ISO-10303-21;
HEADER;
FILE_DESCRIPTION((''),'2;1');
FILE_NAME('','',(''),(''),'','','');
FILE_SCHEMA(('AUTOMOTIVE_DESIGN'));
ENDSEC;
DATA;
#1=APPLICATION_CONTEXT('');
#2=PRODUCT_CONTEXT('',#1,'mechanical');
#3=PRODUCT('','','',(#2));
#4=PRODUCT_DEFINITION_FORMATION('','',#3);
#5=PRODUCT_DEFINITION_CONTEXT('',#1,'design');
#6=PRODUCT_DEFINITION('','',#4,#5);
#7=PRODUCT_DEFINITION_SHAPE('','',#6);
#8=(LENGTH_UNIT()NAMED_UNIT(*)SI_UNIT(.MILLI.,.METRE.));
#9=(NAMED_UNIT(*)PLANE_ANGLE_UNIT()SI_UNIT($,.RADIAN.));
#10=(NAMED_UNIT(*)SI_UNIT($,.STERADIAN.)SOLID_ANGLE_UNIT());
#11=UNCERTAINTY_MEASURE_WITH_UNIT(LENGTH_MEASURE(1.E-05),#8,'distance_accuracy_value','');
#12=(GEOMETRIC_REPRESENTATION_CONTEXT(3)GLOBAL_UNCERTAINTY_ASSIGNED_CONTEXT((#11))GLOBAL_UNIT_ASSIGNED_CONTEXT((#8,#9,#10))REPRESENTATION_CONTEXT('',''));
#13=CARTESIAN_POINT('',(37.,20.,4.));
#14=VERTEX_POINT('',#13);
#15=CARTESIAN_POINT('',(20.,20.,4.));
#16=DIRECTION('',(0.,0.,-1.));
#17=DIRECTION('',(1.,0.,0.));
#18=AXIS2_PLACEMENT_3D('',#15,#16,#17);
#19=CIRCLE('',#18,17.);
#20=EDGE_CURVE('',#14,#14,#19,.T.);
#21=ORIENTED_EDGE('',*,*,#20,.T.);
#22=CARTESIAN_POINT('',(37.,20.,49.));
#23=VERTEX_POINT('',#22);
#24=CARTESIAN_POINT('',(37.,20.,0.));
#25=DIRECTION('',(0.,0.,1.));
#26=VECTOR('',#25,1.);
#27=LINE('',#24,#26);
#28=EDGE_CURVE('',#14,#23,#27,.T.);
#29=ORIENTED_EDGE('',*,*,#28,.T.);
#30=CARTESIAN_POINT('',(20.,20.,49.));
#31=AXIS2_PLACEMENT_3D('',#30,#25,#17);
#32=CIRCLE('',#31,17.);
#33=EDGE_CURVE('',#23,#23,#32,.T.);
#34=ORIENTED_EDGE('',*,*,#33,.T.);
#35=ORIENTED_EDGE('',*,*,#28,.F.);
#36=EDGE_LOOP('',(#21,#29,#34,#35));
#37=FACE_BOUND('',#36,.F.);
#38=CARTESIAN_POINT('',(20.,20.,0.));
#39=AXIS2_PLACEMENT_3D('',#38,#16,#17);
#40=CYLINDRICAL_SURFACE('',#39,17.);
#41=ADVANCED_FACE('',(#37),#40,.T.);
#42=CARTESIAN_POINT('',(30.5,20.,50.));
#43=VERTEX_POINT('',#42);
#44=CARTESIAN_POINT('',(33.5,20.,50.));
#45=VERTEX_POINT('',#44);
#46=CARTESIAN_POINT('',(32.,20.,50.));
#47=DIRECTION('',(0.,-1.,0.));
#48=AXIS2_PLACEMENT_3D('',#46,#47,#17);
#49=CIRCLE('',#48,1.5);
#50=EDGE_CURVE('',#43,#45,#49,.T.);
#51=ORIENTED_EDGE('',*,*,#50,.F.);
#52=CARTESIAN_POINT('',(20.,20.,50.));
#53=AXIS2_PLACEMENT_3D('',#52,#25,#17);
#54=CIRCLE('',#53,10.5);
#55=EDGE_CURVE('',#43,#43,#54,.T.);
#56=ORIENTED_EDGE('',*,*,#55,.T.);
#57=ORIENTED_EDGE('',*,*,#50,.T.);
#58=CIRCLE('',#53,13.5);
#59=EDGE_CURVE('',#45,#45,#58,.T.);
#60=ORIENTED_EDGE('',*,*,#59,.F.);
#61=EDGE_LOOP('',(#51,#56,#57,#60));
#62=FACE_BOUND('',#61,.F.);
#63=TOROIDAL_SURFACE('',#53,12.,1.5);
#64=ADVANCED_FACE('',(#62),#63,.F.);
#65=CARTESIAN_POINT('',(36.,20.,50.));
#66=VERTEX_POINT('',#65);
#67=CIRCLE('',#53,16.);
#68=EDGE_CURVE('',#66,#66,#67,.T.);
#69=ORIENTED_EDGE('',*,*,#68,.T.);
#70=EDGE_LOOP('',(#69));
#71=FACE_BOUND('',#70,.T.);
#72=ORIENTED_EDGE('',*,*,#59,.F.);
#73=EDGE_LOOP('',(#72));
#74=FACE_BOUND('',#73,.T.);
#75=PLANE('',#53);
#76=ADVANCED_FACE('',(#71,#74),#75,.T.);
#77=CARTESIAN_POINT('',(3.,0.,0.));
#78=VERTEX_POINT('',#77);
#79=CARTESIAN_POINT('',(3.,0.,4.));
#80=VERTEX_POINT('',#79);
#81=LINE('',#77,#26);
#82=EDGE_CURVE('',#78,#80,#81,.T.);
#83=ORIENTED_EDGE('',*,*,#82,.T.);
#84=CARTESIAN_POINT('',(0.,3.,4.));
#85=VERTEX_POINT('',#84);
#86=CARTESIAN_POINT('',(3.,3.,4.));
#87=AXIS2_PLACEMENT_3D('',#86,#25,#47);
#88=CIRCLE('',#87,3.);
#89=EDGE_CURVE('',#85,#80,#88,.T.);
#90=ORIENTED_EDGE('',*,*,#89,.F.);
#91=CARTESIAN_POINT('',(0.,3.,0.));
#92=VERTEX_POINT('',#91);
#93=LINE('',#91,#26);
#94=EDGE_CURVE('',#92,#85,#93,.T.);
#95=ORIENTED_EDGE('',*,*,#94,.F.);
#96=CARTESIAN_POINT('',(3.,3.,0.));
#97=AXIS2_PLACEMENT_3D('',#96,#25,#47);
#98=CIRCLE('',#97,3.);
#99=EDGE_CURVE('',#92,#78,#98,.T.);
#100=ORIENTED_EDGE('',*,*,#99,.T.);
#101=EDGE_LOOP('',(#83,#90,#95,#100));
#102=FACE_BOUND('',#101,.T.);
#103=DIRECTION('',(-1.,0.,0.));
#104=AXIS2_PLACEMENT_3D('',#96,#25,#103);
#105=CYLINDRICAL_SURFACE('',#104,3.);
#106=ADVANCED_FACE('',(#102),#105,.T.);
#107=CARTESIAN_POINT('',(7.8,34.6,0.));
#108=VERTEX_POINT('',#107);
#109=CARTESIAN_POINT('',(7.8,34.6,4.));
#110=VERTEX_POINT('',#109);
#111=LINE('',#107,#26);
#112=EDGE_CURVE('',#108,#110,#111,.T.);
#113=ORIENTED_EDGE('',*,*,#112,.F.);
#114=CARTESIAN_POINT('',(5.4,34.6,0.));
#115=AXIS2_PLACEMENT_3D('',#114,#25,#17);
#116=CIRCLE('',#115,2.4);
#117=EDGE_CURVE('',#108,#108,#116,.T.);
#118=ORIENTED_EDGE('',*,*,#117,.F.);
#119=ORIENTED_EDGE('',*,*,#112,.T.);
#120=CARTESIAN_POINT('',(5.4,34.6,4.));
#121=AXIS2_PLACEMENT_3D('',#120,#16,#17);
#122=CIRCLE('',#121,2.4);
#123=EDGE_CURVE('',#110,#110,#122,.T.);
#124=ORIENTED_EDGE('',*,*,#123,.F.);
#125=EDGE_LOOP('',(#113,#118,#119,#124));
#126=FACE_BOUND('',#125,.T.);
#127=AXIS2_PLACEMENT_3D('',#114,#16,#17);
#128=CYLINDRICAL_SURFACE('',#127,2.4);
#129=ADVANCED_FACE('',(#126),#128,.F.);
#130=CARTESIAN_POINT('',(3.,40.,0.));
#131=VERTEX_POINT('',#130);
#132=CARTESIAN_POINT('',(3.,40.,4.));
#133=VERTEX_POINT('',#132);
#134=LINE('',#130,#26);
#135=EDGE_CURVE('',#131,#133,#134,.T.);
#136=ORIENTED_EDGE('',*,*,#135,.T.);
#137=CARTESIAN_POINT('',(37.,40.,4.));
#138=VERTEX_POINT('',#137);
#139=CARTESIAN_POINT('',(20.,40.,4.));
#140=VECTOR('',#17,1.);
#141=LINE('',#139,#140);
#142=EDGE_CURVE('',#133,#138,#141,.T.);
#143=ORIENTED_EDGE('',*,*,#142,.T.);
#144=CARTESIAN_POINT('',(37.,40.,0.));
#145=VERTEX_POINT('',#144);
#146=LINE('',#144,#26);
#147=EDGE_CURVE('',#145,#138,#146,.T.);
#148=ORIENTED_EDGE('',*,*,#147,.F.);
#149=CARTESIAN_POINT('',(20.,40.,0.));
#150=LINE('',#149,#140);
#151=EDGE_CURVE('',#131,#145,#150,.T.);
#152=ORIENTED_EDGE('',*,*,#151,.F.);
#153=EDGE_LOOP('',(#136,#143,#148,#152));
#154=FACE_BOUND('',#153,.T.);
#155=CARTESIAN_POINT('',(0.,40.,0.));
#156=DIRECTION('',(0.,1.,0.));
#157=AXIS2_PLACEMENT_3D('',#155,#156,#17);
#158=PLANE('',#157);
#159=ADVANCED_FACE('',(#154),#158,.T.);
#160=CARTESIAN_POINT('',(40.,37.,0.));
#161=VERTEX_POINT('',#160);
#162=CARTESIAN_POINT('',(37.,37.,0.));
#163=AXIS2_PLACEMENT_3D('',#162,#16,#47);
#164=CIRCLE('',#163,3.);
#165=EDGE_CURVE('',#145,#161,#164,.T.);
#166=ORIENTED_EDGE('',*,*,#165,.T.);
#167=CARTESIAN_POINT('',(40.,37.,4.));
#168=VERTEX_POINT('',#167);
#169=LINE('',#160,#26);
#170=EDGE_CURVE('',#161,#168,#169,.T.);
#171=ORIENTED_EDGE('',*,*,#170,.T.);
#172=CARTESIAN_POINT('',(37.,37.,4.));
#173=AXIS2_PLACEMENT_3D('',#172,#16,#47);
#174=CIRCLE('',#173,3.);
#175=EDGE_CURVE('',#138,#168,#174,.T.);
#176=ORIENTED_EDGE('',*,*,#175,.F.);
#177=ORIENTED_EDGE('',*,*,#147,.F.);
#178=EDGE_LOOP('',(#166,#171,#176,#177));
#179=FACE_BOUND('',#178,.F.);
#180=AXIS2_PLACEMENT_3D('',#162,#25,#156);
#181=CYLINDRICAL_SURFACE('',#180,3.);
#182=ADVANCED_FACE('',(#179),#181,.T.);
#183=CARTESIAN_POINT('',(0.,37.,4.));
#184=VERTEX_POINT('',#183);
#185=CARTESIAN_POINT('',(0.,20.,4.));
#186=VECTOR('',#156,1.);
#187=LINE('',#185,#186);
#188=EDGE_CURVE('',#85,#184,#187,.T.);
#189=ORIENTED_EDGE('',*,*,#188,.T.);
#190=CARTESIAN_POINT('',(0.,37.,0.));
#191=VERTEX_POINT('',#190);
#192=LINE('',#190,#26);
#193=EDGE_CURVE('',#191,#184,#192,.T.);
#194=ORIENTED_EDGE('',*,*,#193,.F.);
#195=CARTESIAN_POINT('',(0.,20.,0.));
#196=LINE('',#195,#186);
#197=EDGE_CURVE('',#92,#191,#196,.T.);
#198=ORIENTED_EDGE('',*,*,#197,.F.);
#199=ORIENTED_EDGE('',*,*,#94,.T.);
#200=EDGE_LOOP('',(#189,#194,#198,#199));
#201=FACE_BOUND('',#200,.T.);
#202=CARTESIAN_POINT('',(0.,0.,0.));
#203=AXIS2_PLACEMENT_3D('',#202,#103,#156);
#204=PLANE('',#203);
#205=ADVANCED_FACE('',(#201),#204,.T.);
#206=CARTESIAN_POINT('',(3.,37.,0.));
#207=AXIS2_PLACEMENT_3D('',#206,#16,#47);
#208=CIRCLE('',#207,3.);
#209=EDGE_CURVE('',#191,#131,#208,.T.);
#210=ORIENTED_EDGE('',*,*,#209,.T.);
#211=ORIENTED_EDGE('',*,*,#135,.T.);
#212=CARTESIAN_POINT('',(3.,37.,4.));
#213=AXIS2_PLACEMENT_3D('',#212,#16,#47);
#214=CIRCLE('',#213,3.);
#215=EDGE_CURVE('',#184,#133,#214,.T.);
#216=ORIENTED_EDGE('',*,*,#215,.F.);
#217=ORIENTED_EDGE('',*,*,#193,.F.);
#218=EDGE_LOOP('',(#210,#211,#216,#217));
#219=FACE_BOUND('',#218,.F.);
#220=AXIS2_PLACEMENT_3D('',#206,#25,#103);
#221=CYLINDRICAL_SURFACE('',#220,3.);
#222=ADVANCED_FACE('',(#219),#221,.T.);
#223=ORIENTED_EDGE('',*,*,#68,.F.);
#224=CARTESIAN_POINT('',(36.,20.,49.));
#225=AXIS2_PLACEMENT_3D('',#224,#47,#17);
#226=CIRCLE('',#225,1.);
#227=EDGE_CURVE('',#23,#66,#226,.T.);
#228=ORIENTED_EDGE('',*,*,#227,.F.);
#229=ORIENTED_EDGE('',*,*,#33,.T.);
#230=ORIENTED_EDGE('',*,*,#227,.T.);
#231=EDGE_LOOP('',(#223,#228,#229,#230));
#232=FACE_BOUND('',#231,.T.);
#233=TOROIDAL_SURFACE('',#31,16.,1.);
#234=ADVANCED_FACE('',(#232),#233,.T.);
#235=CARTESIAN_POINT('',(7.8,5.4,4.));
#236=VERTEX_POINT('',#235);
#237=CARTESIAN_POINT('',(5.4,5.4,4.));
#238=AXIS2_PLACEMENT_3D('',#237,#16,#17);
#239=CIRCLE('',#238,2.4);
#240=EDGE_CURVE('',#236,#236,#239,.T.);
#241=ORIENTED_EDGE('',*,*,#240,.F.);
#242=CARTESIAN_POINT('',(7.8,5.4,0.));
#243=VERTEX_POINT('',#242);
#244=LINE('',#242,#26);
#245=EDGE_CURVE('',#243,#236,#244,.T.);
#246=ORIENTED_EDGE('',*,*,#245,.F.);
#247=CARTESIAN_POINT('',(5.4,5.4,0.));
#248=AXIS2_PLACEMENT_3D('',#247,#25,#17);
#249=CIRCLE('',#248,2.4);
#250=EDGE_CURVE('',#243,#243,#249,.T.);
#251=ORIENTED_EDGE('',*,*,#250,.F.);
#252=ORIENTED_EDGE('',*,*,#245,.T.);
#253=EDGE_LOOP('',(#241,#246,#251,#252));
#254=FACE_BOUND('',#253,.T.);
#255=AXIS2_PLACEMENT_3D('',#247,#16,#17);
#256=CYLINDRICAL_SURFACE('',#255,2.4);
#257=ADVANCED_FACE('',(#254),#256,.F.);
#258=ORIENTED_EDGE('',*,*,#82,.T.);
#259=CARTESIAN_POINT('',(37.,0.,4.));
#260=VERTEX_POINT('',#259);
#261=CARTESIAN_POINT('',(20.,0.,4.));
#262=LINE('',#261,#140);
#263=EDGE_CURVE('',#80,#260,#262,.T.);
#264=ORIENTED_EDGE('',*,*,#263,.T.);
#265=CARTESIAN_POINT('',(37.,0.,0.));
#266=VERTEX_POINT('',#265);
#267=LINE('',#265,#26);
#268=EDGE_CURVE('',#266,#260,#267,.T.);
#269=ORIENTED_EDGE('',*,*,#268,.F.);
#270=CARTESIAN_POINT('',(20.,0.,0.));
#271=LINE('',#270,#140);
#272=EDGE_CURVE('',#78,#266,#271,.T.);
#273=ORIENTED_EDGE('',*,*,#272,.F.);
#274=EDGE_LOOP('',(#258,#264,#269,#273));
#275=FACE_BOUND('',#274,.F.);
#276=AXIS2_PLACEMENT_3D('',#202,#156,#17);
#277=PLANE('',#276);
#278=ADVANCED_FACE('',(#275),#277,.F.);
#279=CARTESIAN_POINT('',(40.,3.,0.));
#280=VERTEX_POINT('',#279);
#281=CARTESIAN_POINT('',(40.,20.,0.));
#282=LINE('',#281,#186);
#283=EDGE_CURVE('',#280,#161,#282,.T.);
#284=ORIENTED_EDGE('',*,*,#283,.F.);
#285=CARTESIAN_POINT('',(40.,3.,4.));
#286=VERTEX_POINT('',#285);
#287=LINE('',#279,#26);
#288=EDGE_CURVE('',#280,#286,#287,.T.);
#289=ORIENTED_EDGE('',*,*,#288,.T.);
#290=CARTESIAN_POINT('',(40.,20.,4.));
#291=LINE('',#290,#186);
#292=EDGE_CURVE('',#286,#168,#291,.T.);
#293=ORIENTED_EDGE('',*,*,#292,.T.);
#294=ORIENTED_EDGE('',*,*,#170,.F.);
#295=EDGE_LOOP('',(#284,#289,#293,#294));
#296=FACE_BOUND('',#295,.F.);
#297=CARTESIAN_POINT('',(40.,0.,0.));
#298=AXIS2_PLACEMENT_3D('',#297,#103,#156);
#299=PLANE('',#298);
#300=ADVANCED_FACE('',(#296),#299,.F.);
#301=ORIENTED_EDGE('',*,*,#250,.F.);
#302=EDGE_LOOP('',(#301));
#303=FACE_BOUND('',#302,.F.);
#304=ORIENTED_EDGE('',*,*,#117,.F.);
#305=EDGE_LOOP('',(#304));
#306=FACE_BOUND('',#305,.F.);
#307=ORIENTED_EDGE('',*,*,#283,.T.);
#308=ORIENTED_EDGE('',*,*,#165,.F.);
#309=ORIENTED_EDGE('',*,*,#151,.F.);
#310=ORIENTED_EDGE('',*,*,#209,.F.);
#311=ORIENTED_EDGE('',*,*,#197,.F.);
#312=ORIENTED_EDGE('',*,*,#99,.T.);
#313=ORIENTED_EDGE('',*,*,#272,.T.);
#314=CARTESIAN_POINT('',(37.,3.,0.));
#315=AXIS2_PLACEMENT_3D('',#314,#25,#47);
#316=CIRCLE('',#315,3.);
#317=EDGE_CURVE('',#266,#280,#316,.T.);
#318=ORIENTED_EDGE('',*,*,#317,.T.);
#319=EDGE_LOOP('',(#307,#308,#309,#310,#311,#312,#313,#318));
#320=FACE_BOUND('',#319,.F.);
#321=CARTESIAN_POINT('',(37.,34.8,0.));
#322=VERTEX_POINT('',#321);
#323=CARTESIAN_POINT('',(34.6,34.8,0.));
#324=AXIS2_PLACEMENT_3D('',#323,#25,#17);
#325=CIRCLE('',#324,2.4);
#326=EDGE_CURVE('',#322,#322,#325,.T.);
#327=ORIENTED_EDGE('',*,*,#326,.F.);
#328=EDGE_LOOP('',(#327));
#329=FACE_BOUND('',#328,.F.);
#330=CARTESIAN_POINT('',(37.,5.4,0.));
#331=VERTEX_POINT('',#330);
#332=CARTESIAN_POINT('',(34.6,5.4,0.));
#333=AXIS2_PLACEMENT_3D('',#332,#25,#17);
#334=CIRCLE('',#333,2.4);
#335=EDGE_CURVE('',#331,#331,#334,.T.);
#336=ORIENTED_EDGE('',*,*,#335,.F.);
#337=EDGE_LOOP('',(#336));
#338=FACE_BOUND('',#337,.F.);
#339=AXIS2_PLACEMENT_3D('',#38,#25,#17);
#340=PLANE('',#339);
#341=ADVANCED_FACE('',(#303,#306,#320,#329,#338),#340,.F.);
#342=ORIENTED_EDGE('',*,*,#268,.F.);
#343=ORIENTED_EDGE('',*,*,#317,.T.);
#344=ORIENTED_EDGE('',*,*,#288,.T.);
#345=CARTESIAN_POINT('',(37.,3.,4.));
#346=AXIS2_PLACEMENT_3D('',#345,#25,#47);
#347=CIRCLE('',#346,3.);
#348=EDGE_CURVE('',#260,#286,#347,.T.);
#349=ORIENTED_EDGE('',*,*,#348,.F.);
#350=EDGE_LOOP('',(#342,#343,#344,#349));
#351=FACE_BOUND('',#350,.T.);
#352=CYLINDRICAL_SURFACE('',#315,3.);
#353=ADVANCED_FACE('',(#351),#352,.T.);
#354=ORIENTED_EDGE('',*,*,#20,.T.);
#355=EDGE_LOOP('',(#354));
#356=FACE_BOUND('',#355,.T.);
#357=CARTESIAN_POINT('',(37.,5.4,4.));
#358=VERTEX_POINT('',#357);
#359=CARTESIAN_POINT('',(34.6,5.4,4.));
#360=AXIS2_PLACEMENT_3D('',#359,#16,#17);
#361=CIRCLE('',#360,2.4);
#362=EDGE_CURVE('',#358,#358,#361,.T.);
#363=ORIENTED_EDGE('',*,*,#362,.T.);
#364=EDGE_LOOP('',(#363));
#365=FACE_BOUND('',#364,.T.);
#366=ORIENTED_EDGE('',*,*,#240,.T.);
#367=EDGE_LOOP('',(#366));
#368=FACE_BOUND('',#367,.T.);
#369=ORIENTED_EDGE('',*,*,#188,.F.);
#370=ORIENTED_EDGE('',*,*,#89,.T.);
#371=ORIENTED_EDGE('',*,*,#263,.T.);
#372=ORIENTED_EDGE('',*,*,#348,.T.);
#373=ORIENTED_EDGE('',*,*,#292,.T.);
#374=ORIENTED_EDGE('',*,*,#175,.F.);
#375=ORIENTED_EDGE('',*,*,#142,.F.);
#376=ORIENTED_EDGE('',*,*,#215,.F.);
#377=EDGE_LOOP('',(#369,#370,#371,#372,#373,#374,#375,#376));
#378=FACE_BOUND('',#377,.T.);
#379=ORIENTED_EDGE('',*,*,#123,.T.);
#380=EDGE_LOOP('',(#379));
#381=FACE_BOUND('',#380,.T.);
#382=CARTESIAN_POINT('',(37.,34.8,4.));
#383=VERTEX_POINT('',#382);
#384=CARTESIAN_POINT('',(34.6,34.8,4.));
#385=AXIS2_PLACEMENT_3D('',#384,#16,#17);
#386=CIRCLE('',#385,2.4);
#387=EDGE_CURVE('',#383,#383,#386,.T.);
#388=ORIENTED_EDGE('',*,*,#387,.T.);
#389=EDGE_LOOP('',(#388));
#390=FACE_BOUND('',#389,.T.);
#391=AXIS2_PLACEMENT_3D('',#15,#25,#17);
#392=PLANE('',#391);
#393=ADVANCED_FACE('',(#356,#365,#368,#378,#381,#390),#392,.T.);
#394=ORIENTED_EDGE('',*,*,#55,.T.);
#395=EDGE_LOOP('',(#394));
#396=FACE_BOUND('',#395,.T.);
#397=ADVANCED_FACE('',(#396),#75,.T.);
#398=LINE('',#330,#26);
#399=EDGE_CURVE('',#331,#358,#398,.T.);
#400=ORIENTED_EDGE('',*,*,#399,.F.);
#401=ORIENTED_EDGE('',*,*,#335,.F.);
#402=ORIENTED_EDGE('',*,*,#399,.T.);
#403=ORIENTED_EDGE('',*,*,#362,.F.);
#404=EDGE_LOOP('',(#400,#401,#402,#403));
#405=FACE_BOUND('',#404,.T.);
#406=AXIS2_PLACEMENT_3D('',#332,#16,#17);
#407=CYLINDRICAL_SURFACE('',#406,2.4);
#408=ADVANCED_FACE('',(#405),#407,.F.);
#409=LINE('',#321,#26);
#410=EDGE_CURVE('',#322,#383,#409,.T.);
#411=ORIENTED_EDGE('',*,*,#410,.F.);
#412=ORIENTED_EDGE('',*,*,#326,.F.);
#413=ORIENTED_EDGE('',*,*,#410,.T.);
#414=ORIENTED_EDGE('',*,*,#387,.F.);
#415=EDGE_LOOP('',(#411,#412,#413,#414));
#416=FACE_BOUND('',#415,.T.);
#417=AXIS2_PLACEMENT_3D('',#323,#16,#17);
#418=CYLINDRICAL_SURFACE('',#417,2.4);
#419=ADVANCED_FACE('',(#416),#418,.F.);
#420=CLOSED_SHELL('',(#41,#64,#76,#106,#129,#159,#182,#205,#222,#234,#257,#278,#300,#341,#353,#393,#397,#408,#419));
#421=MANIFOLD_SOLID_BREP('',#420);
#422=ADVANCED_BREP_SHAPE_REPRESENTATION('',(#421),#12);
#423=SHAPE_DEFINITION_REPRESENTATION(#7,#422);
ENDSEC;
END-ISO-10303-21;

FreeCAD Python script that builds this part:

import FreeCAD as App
import Part
import Sketcher

V = App.Vector


def edges_at(feature, points):
    """Names of the edges that pass closest to the given points."""
    edges = feature.Shape.Edges
    near = lambda p: min(range(len(edges)), key=lambda i: edges[i].distToShape(Part.Vertex(*p))[0])
    return sorted({f"Edge{near(p) + 1}" for p in points})


def add_polygon(sketch, points):
    """Adds a closed chain of lines whose ends are joined by coincident constraints."""
    first, n = sketch.GeometryCount, len(points)
    for a, b in zip(points, points[1:] + points[:1]):
        sketch.addGeometry(Part.LineSegment(App.Vector(*a, 0), App.Vector(*b, 0)), False)
    for i in range(n):
        sketch.addConstraint(Sketcher.Constraint("Coincident", first + i, 2, first + (i + 1) % n, 1))

doc = App.newDocument("Part")
body = doc.addObject("PartDesign::Body", "Body")

sketch1 = body.newObject("Sketcher::SketchObject", "Sketch")
sketch1.AttachmentSupport = (doc.getObject("XZ_Plane"), [""])
sketch1.MapMode = "FlatFace"
sketch1.AttachmentOffset = App.Placement(V(0, 0, -20), App.Rotation())
sketch1.addGeometry(Part.Circle(V(32, 50, 0), V(0, 0, 1), 1.5), False)
sketch1.addGeometry(Part.LineSegment(V(20, 50, 0), V(20, 60, 0)), True)
sketch1.addConstraint([
    Sketcher.Constraint("Vertical", 1),
    Sketcher.Constraint("Horizontal", 0, 3, 1, 1),
    Sketcher.Constraint("Diameter", 0, 3.0),
    Sketcher.Constraint("DistanceY", 1, 1, 1, 2, 10.0),
    Sketcher.Constraint("DistanceX", -1, 1, 0, 3, 32.0),
    Sketcher.Constraint("DistanceY", -1, 1, 0, 3, 50.0),
    Sketcher.Constraint("DistanceX", -1, 1, 1, 1, 20.0),
])
revolution = body.newObject("PartDesign::Revolution", "Revolution")
revolution.Profile = sketch1
revolution.ReferenceAxis = (sketch1, ["Axis0"])
revolution.Angle = 360
body2 = doc.addObject("PartDesign::Body", "Body001")

sketch2 = body2.newObject("Sketcher::SketchObject", "Sketch001")
sketch2.AttachmentSupport = (doc.getObject("XY_Plane001"), [""])
sketch2.MapMode = "FlatFace"
sketch2.addGeometry(Part.Circle(V(20, 20, 0), V(0, 0, 1), 17), False)
sketch2.addConstraint([
    Sketcher.Constraint("Diameter", 0, 34.0),
    Sketcher.Constraint("DistanceX", -1, 1, 0, 3, 20.0),
    Sketcher.Constraint("DistanceY", -1, 1, 0, 3, 20.0),
])
pad1 = body2.newObject("PartDesign::Pad", "Pad")
pad1.Profile = sketch2
pad1.Length = 50
doc.recompute()

fillet = body2.newObject("PartDesign::Fillet", "Fillet")
fillet.Base = (pad1, edges_at(pad1, [(3, 20, 50)]))
fillet.Radius = 1
body3 = doc.addObject("PartDesign::Body", "Body002")

sketch3 = body3.newObject("Sketcher::SketchObject", "Sketch002")
sketch3.AttachmentSupport = (doc.getObject("XY_Plane002"), [""])
sketch3.MapMode = "FlatFace"
sketch3.addGeometry(Part.Circle(V(5.4, 5.4, 0), V(0, 0, 1), 2.4), False)
sketch3.addConstraint([
    Sketcher.Constraint("Diameter", 0, 4.8),
    Sketcher.Constraint("DistanceX", -1, 1, 0, 3, 5.4),
    Sketcher.Constraint("DistanceY", -1, 1, 0, 3, 5.4),
])
pad2 = body3.newObject("PartDesign::Pad", "Pad001")
pad2.Profile = sketch3
pad2.Length = 10
body4 = doc.addObject("PartDesign::Body", "Body003")

sketch4 = body4.newObject("Sketcher::SketchObject", "Sketch003")
sketch4.AttachmentSupport = (doc.getObject("XY_Plane003"), [""])
sketch4.MapMode = "FlatFace"
sketch4.addGeometry(Part.Circle(V(5.4, 34.6, 0), V(0, 0, 1), 2.4), False)
sketch4.addConstraint([
    Sketcher.Constraint("Diameter", 0, 4.8),
    Sketcher.Constraint("DistanceX", -1, 1, 0, 3, 5.4),
    Sketcher.Constraint("DistanceY", -1, 1, 0, 3, 34.6),
])
pad3 = body4.newObject("PartDesign::Pad", "Pad002")
pad3.Profile = sketch4
pad3.Length = 10
body5 = doc.addObject("PartDesign::Body", "Body004")
body5.AllowCompound = True

sketch5 = body5.newObject("Sketcher::SketchObject", "Sketch004")
sketch5.AttachmentSupport = (doc.getObject("XY_Plane004"), [""])
sketch5.MapMode = "FlatFace"
sketch5.addGeometry(Part.Circle(V(34.6, 34.8, 0), V(0, 0, 1), 2.4), False)
sketch5.addConstraint([
    Sketcher.Constraint("Diameter", 0, 4.8),
    Sketcher.Constraint("DistanceX", -1, 1, 0, 3, 34.6),
    Sketcher.Constraint("DistanceY", -1, 1, 0, 3, 34.8),
])
pad4 = body5.newObject("PartDesign::Pad", "Pad003")
pad4.Profile = sketch5
pad4.Length = 10
doc.recompute()

boolean = body5.newObject("PartDesign::Boolean", "Boolean")
boolean.Type = "Fuse"
boolean.addObjects([body4])
body6 = doc.addObject("PartDesign::Body", "Body005")
body6.AllowCompound = True

sketch6 = body6.newObject("Sketcher::SketchObject", "Sketch005")
sketch6.AttachmentSupport = (doc.getObject("XY_Plane005"), [""])
sketch6.MapMode = "FlatFace"
sketch6.addGeometry(Part.Circle(V(34.6, 5.4, 0), V(0, 0, 1), 2.4), False)
sketch6.addConstraint([
    Sketcher.Constraint("Diameter", 0, 4.8),
    Sketcher.Constraint("DistanceX", -1, 1, 0, 3, 34.6),
    Sketcher.Constraint("DistanceY", -1, 1, 0, 3, 5.4),
])
pad5 = body6.newObject("PartDesign::Pad", "Pad004")
pad5.Profile = sketch6
pad5.Length = 10
doc.recompute()

boolean2 = body6.newObject("PartDesign::Boolean", "Boolean001")
boolean2.Type = "Fuse"
boolean2.addObjects([body5])
body7 = doc.addObject("PartDesign::Body", "Body006")

sketch7 = body7.newObject("Sketcher::SketchObject", "Sketch006")
sketch7.AttachmentSupport = (doc.getObject("XY_Plane006"), [""])
sketch7.MapMode = "FlatFace"
add_polygon(sketch7, [(0, 40), (0, 0), (40, 0), (40, 40)])
sketch7.addConstraint([
    Sketcher.Constraint("Vertical", 0),
    Sketcher.Constraint("Horizontal", 1),
    Sketcher.Constraint("Vertical", 2),
    Sketcher.Constraint("Horizontal", 3),
    Sketcher.Constraint("Coincident", 0, 2, -1, 1),
    Sketcher.Constraint("Equal", 3, 0),
    Sketcher.Constraint("DistanceX", 1, 1, 1, 2, 40.0),
])
pad6 = body7.newObject("PartDesign::Pad", "Pad005")
pad6.Profile = sketch7
pad6.Length = 4
doc.recompute()

boolean3 = body7.newObject("PartDesign::Boolean", "Boolean002")
boolean3.Type = "Cut"
boolean3.addObjects([body6])
doc.recompute()

boolean4 = body7.newObject("PartDesign::Boolean", "Boolean003")
boolean4.Type = "Cut"
boolean4.addObjects([body3])
doc.recompute()

fillet2 = body7.newObject("PartDesign::Fillet", "Fillet001")
fillet2.Base = (boolean4, edges_at(boolean4, [
    (0, 0, 2),
    (0, 40, 2),
    (40, 0, 2),
    (40, 40, 2),
]))
fillet2.Radius = 3
doc.recompute()

boolean5 = body7.newObject("PartDesign::Boolean", "Boolean004")
boolean5.Type = "Fuse"
boolean5.addObjects([body2])
doc.recompute()

boolean6 = body7.newObject("PartDesign::Boolean", "Boolean005")
boolean6.Type = "Cut"
boolean6.addObjects([body])

doc.recompute()
